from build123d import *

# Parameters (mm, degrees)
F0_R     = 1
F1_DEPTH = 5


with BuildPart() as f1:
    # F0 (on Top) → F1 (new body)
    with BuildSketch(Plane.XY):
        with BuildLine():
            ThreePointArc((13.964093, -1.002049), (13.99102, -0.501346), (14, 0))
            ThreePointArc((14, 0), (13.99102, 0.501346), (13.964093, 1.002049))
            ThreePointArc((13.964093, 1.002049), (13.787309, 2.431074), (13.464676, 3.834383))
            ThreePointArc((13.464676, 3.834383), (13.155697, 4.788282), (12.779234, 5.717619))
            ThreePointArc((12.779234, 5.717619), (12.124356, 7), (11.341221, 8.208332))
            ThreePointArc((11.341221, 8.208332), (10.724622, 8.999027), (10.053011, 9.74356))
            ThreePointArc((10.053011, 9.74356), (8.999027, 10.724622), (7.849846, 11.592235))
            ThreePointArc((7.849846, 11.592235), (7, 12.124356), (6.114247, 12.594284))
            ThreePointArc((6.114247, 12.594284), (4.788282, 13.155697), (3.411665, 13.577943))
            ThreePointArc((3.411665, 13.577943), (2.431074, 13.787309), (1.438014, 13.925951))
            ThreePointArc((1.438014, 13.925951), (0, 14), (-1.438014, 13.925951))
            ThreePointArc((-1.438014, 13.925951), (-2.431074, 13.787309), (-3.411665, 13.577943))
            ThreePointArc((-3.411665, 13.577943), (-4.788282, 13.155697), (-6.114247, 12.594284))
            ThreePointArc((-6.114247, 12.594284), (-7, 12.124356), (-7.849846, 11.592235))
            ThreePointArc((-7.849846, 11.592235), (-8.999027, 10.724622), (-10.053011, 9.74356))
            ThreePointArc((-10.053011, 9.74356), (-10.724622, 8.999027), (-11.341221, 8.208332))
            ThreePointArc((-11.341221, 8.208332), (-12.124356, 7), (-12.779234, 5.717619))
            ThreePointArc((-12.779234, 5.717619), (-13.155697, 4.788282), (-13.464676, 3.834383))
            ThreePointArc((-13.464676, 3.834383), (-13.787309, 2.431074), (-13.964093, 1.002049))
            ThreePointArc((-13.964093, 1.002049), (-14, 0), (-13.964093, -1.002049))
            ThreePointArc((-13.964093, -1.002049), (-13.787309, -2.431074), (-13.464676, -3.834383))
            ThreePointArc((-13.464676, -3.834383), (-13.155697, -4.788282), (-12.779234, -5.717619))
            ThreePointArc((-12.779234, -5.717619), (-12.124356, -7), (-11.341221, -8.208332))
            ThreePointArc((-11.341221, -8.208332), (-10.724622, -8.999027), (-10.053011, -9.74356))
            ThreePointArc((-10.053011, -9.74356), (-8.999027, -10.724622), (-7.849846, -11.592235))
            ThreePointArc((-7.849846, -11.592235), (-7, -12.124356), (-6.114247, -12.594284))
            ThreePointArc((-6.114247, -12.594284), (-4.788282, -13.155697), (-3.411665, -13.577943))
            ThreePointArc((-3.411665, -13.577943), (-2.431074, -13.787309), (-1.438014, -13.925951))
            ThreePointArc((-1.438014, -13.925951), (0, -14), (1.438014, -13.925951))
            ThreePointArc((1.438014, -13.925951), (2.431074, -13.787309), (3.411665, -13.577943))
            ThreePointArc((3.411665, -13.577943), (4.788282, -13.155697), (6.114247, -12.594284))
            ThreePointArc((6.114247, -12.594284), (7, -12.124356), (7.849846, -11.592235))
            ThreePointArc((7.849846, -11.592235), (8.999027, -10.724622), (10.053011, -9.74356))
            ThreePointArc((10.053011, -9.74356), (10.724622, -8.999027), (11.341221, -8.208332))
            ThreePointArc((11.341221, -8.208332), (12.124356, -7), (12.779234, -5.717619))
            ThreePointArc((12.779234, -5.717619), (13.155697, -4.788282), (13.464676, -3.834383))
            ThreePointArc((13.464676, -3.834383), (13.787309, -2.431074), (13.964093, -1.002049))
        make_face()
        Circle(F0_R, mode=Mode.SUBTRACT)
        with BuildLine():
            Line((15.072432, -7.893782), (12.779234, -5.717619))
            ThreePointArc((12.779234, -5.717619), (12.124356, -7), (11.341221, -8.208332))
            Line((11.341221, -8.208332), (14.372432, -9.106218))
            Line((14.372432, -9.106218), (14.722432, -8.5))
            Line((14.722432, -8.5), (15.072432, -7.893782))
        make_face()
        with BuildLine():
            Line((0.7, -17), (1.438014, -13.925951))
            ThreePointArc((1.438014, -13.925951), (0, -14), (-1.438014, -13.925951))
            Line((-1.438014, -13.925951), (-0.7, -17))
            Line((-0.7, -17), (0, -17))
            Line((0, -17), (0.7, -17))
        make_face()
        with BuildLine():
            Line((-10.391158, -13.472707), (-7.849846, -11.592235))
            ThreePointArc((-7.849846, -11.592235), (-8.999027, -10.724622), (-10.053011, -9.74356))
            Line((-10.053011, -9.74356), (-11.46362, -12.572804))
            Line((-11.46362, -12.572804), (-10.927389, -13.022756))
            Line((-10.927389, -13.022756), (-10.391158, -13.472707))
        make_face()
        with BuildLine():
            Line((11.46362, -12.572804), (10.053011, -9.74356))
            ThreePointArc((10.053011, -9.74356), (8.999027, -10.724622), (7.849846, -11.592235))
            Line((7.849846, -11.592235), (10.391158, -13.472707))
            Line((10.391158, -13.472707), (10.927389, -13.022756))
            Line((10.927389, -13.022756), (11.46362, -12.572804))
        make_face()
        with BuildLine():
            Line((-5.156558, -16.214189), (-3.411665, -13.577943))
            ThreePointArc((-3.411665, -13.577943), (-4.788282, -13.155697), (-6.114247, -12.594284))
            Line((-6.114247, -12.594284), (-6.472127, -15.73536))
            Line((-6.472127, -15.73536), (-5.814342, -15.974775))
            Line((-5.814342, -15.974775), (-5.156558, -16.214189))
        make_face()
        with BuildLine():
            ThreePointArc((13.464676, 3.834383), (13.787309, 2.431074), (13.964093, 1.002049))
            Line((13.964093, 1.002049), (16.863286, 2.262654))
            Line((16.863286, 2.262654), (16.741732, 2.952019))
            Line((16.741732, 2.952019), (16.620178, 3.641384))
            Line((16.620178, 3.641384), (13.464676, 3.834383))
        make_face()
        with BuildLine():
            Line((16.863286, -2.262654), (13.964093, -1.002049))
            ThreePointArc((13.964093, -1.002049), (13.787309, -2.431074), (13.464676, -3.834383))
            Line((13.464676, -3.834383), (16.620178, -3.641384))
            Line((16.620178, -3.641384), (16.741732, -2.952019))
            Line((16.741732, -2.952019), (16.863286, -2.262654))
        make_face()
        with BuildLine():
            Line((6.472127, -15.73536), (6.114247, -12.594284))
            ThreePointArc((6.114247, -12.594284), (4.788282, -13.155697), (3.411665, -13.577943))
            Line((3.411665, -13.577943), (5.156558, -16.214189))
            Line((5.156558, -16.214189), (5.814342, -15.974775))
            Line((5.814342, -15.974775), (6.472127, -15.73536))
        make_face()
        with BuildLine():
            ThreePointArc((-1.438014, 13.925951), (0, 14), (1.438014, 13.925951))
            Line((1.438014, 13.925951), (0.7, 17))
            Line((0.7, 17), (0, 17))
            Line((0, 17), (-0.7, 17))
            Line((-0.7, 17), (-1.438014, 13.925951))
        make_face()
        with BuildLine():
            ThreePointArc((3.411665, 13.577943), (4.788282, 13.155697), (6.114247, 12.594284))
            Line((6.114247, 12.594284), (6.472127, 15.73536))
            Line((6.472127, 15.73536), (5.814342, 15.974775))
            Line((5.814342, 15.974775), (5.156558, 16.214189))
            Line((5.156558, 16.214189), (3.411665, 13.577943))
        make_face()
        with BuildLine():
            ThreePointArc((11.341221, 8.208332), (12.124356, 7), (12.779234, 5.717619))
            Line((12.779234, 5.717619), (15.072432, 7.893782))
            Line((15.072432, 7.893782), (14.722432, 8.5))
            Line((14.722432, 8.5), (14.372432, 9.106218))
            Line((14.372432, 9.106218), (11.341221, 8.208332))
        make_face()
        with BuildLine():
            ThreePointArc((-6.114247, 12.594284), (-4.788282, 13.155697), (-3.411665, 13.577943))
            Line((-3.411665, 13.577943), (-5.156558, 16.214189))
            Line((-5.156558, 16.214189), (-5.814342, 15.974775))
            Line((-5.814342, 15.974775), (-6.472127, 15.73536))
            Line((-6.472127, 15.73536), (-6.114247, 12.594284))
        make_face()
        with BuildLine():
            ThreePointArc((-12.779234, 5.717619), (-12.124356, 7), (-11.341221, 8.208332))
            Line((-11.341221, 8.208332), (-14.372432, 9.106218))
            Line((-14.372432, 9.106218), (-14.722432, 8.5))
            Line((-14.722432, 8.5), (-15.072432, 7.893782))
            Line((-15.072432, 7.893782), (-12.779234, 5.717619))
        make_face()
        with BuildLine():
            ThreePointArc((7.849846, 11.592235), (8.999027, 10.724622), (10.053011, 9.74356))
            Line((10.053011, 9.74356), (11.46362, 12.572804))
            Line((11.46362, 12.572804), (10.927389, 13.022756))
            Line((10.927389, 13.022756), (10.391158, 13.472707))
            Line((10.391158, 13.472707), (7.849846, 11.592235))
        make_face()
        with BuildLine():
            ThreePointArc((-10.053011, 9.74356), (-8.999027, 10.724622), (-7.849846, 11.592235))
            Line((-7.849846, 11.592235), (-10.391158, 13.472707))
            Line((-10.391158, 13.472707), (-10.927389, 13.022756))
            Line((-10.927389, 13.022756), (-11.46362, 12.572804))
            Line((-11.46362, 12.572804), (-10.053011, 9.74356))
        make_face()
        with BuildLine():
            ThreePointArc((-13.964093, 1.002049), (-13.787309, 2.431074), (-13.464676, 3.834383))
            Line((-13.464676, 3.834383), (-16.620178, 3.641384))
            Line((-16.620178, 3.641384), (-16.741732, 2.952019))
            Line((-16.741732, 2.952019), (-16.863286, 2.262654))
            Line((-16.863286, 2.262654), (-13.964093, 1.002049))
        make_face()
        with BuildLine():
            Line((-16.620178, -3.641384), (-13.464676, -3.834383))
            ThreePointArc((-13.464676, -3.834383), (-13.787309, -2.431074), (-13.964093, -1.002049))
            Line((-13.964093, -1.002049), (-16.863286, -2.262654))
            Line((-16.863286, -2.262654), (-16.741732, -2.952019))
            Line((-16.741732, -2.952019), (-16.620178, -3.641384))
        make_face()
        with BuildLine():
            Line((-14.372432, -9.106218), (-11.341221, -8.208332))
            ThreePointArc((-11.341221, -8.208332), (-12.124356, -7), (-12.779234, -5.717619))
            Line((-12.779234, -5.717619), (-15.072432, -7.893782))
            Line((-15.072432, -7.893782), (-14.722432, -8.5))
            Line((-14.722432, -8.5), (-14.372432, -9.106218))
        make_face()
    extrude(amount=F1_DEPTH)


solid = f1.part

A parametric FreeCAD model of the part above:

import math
import FreeCAD as App
import Part
import Sketcher

V = App.Vector
Q = App.Units.Quantity

doc = App.newDocument("Part")
params = doc.addObject("Spreadsheet::Sheet", "Params")
for row, (alias, value) in enumerate([
    ("sketch1_diameter", "2 mm"),
    ("sketch1_width", "1.4 mm"),
    ("sketch1_length", "1.399999 mm"),
    ("sketch1_length2", "0.7 mm"),
    ("pad1_length", "5 mm"),
], start=1):
    params.set(f"A{row}", alias)
    params.set(f"B{row}", "=" + value)
    params.setAlias(f"B{row}", alias)

body = doc.addObject("PartDesign::Body", "Body")

# Sketch on XY plane
sketch1 = body.newObject("Sketcher::SketchObject", "Sketch")
sketch1.AttachmentSupport = (doc.getObject("XY_Plane"), [""])
sketch1.MapMode = "FlatFace"
sketch1.addGeometry([
    Part.ArcOfCircle(Part.Circle(V(-0.000518, 0.000021, 0), V(0, 0, 1), 14.000518), math.radians(-4.104384), math.radians(-0.000085)),  # 0
    Part.ArcOfCircle(Part.Circle(V(-0.000518, -0.000021, 0), V(0, 0, 1), 14.000518), math.radians(0.000085), math.radians(4.104384)),  # 1
    Part.LineSegment(V(13.964093, 1.002049, 0), V(16.863286, 2.262654, 0)),  # 2
    Part.LineSegment(V(16.863286, 2.262654, 0), V(16.620178, 3.641384, 0)),  # 3
    Part.LineSegment(V(16.620178, 3.641384, 0), V(13.464676, 3.834383, 0)),  # 4
    Part.ArcOfCircle(Part.Circle(V(0.000227, 0.000082, 0), V(0, 0, 1), 13.999759), math.radians(15.895482), math.radians(24.104526)),  # 5
    Part.LineSegment(V(12.779234, 5.717619, 0), V(15.072432, 7.893782, 0)),  # 6
    Part.LineSegment(V(15.072432, 7.893782, 0), V(14.372432, 9.106218, 0)),  # 7
    Part.LineSegment(V(14.372432, 9.106218, 0), V(11.341221, 8.208332, 0)),  # 8
    Part.ArcOfCircle(Part.Circle(V(0.000047, 0.000034, 0), V(0, 0, 1), 13.999942), math.radians(35.895548), math.radians(44.104485)),  # 9
    Part.LineSegment(V(10.053011, 9.74356, 0), V(11.46362, 12.572804, 0)),  # 10
    Part.LineSegment(V(11.46362, 12.572804, 0), V(10.927389, 13.022756, 0)),  # 11
    Part.LineSegment(V(10.927389, 13.022756, 0), V(10.391158, 13.472707, 0)),  # 12
    Part.LineSegment(V(10.391158, 13.472707, 0), V(7.849846, 11.592235, 0)),  # 13
    Part.ArcOfCircle(Part.Circle(V(0.000055, 0.000101, 0), V(0, 0, 1), 13.999886), math.radians(55.895506), math.radians(64.104472)),  # 14
    Part.LineSegment(V(6.114247, 12.594284, 0), V(6.472127, 15.73536, 0)),  # 15
    Part.LineSegment(V(6.472127, 15.73536, 0), V(5.814342, 15.974775, 0)),  # 16
    Part.LineSegment(V(5.814342, 15.974775, 0), V(5.156558, 16.214189, 0)),  # 17
    Part.LineSegment(V(5.156558, 16.214189, 0), V(3.411665, 13.577943, 0)),  # 18
    Part.ArcOfCircle(Part.Circle(V(0.000037, 0.000211, 0), V(0, 0, 1), 13.999786), math.radians(75.895484), math.radians(84.104511)),  # 19
    Part.LineSegment(V(1.438014, 13.925951, 0), V(0.7, 17, 0)),  # 20
    Part.LineSegment(V(0.7, 17, 0), V(-0.7, 17, 0)),  # 21
    Part.LineSegment(V(-0.7, 17, 0), V(-1.438014, 13.925951, 0)),  # 22
    Part.ArcOfCircle(Part.Circle(V(-0.000037, 0.000211, 0), V(0, 0, 1), 13.999786), math.radians(95.895489), math.radians(104.104516)),  # 23
    Part.LineSegment(V(-3.411665, 13.577943, 0), V(-5.156558, 16.214189, 0)),  # 24
    Part.LineSegment(V(-5.156558, 16.214189, 0), V(-5.814342, 15.974775, 0)),  # 25
    Part.LineSegment(V(-5.814342, 15.974775, 0), V(-6.472127, 15.73536, 0)),  # 26
    Part.LineSegment(V(-6.472127, 15.73536, 0), V(-6.114247, 12.594284, 0)),  # 27
    Part.ArcOfCircle(Part.Circle(V(-0.000055, 0.000101, 0), V(0, 0, 1), 13.999886), math.radians(115.895528), math.radians(124.104494)),  # 28
    Part.LineSegment(V(-7.849846, 11.592235, 0), V(-10.391158, 13.472707, 0)),  # 29
    Part.LineSegment(V(-10.391158, 13.472707, 0), V(-10.927389, 13.022756, 0)),  # 30
    Part.LineSegment(V(-10.927389, 13.022756, 0), V(-11.46362, 12.572804, 0)),  # 31
    Part.LineSegment(V(-11.46362, 12.572804, 0), V(-10.053011, 9.74356, 0)),  # 32
    Part.ArcOfCircle(Part.Circle(V(-0.000047, 0.000034, 0), V(0, 0, 1), 13.999942), math.radians(135.895515), math.radians(144.104452)),  # 33
    Part.LineSegment(V(-11.341221, 8.208332, 0), V(-14.372432, 9.106218, 0)),  # 34
    Part.LineSegment(V(-14.372432, 9.106218, 0), V(-15.072432, 7.893782, 0)),  # 35
    Part.LineSegment(V(-15.072432, 7.893782, 0), V(-12.779234, 5.717619, 0)),  # 36
    Part.ArcOfCircle(Part.Circle(V(-0.000227, 0.000082, 0), V(0, 0, 1), 13.999759), math.radians(155.895474), math.radians(164.104518)),  # 37
    Part.LineSegment(V(-13.464676, 3.834383, 0), V(-16.620178, 3.641384, 0)),  # 38
    Part.LineSegment(V(-16.620178, 3.641384, 0), V(-16.863286, 2.262654, 0)),  # 39
    Part.LineSegment(V(-16.863286, 2.262654, 0), V(-13.964093, 1.002049, 0)),  # 40
    Part.ArcOfCircle(Part.Circle(V(-0.000063, 0, 0), V(0, 0, 1), 13.999937), math.radians(175.895531), math.radians(184.104469)),  # 41
    Part.LineSegment(V(-13.964093, -1.002049, 0), V(-16.863286, -2.262654, 0)),  # 42
    Part.LineSegment(V(-16.863286, -2.262654, 0), V(-16.620178, -3.641384, 0)),  # 43
    Part.LineSegment(V(-16.620178, -3.641384, 0), V(-13.464676, -3.834383, 0)),  # 44
    Part.ArcOfCircle(Part.Circle(V(-0.000227, -0.000082, 0), V(0, 0, 1), 13.999759), math.radians(-164.104518), math.radians(-155.895474)),  # 45
    Part.LineSegment(V(-12.779234, -5.717619, 0), V(-15.072432, -7.893782, 0)),  # 46
    Part.LineSegment(V(-15.072432, -7.893782, 0), V(-14.372432, -9.106218, 0)),  # 47
    Part.LineSegment(V(-14.372432, -9.106218, 0), V(-11.341221, -8.208332, 0)),  # 48
    Part.ArcOfCircle(Part.Circle(V(-0.000047, -0.000034, 0), V(0, 0, 1), 13.999942), math.radians(-144.104452), math.radians(-135.895515)),  # 49
    Part.LineSegment(V(-10.053011, -9.74356, 0), V(-11.46362, -12.572804, 0)),  # 50
    Part.LineSegment(V(-11.46362, -12.572804, 0), V(-10.927389, -13.022756, 0)),  # 51
    Part.LineSegment(V(-10.927389, -13.022756, 0), V(-10.391158, -13.472707, 0)),  # 52
    Part.LineSegment(V(-10.391158, -13.472707, 0), V(-7.849846, -11.592235, 0)),  # 53
    Part.ArcOfCircle(Part.Circle(V(-0.000055, -0.000101, 0), V(0, 0, 1), 13.999886), math.radians(-124.104494), math.radians(-115.895528)),  # 54
    Part.LineSegment(V(-6.114247, -12.594284, 0), V(-6.472127, -15.73536, 0)),  # 55
    Part.LineSegment(V(-6.472127, -15.73536, 0), V(-5.814342, -15.974775, 0)),  # 56
    Part.LineSegment(V(-5.814342, -15.974775, 0), V(-5.156558, -16.214189, 0)),  # 57
    Part.LineSegment(V(-5.156558, -16.214189, 0), V(-3.411665, -13.577943, 0)),  # 58
    Part.ArcOfCircle(Part.Circle(V(-0.000037, -0.000211, 0), V(0, 0, 1), 13.999786), math.radians(-104.104516), math.radians(-95.895489)),  # 59
    Part.LineSegment(V(-1.438014, -13.925951, 0), V(-0.7, -17, 0)),  # 60
    Part.LineSegment(V(-0.7, -17, 0), V(0.7, -17, 0)),  # 61
    Part.LineSegment(V(0.7, -17, 0), V(1.438014, -13.925951, 0)),  # 62
    Part.ArcOfCircle(Part.Circle(V(0.000037, -0.000211, 0), V(0, 0, 1), 13.999786), math.radians(-84.104511), math.radians(-75.895484)),  # 63
    Part.LineSegment(V(3.411665, -13.577943, 0), V(5.156558, -16.214189, 0)),  # 64
    Part.LineSegment(V(5.156558, -16.214189, 0), V(5.814342, -15.974775, 0)),  # 65
    Part.LineSegment(V(5.814342, -15.974775, 0), V(6.472127, -15.73536, 0)),  # 66
    Part.LineSegment(V(6.472127, -15.73536, 0), V(6.114247, -12.594284, 0)),  # 67
    Part.ArcOfCircle(Part.Circle(V(0.000055, -0.000101, 0), V(0, 0, 1), 13.999886), math.radians(-64.104472), math.radians(-55.895506)),  # 68
    Part.LineSegment(V(7.849846, -11.592235, 0), V(10.391158, -13.472707, 0)),  # 69
    Part.LineSegment(V(10.391158, -13.472707, 0), V(10.927389, -13.022756, 0)),  # 70
    Part.LineSegment(V(10.927389, -13.022756, 0), V(11.46362, -12.572804, 0)),  # 71
    Part.LineSegment(V(11.46362, -12.572804, 0), V(10.053011, -9.74356, 0)),  # 72
    Part.ArcOfCircle(Part.Circle(V(0.000047, -0.000034, 0), V(0, 0, 1), 13.999942), math.radians(-44.104485), math.radians(-35.895548)),  # 73
    Part.LineSegment(V(11.341221, -8.208332, 0), V(14.372432, -9.106218, 0)),  # 74
    Part.LineSegment(V(14.372432, -9.106218, 0), V(15.072432, -7.893782, 0)),  # 75
    Part.LineSegment(V(15.072432, -7.893782, 0), V(12.779234, -5.717619, 0)),  # 76
    Part.ArcOfCircle(Part.Circle(V(0.000227, -0.000082, 0), V(0, 0, 1), 13.999759), math.radians(-24.104526), math.radians(-15.895482)),  # 77
    Part.LineSegment(V(13.464676, -3.834383, 0), V(16.620178, -3.641384, 0)),  # 78
    Part.LineSegment(V(16.620178, -3.641384, 0), V(16.863286, -2.262654, 0)),  # 79
    Part.LineSegment(V(16.863286, -2.262654, 0), V(13.964093, -1.002049, 0)),  # 80
    Part.Circle(V(0, 0, 0), V(0, 0, 1), 1),  # 81
], False)
sketch1.addConstraint([
    Sketcher.Constraint("Coincident", 0, 2, 1, 1),
    Sketcher.Constraint("Coincident", 1, 2, 2, 1),
    Sketcher.Constraint("Coincident", 2, 2, 3, 1),
    Sketcher.Constraint("Coincident", 3, 2, 4, 1),
    Sketcher.Constraint("Coincident", 4, 2, 5, 1),
    Sketcher.Constraint("Coincident", 5, 2, 6, 1),
    Sketcher.Constraint("Coincident", 6, 2, 7, 1),
    Sketcher.Constraint("Coincident", 7, 2, 8, 1),
    Sketcher.Constraint("Coincident", 8, 2, 9, 1),
    Sketcher.Constraint("Coincident", 9, 2, 10, 1),
    Sketcher.Constraint("Coincident", 10, 2, 11, 1),
    Sketcher.Constraint("Coincident", 11, 2, 12, 1),
    Sketcher.Constraint("Coincident", 12, 2, 13, 1),
    Sketcher.Constraint("Coincident", 13, 2, 14, 1),
    Sketcher.Constraint("Coincident", 14, 2, 15, 1),
    Sketcher.Constraint("Coincident", 15, 2, 16, 1),
    Sketcher.Constraint("Coincident", 16, 2, 17, 1),
    Sketcher.Constraint("Coincident", 17, 2, 18, 1),
    Sketcher.Constraint("Coincident", 18, 2, 19, 1),
    Sketcher.Constraint("Coincident", 19, 2, 20, 1),
    Sketcher.Constraint("Coincident", 20, 2, 21, 1),
    Sketcher.Constraint("Coincident", 21, 2, 22, 1),
    Sketcher.Constraint("Coincident", 22, 2, 23, 1),
    Sketcher.Constraint("Coincident", 23, 2, 24, 1),
    Sketcher.Constraint("Coincident", 24, 2, 25, 1),
    Sketcher.Constraint("Coincident", 25, 2, 26, 1),
    Sketcher.Constraint("Coincident", 26, 2, 27, 1),
    Sketcher.Constraint("Coincident", 27, 2, 28, 1),
    Sketcher.Constraint("Coincident", 28, 2, 29, 1),
    Sketcher.Constraint("Coincident", 29, 2, 30, 1),
    Sketcher.Constraint("Coincident", 30, 2, 31, 1),
    Sketcher.Constraint("Coincident", 31, 2, 32, 1),
    Sketcher.Constraint("Coincident", 32, 2, 33, 1),
    Sketcher.Constraint("Coincident", 33, 2, 34, 1),
    Sketcher.Constraint("Coincident", 34, 2, 35, 1),
    Sketcher.Constraint("Coincident", 35, 2, 36, 1),
    Sketcher.Constraint("Coincident", 36, 2, 37, 1),
    Sketcher.Constraint("Coincident", 37, 2, 38, 1),
    Sketcher.Constraint("Coincident", 38, 2, 39, 1),
    Sketcher.Constraint("Coincident", 39, 2, 40, 1),
    Sketcher.Constraint("Coincident", 40, 2, 41, 1),
    Sketcher.Constraint("Coincident", 41, 2, 42, 1),
    Sketcher.Constraint("Coincident", 42, 2, 43, 1),
    Sketcher.Constraint("Coincident", 43, 2, 44, 1),
    Sketcher.Constraint("Coincident", 44, 2, 45, 1),
    Sketcher.Constraint("Coincident", 45, 2, 46, 1),
    Sketcher.Constraint("Coincident", 46, 2, 47, 1),
    Sketcher.Constraint("Coincident", 47, 2, 48, 1),
    Sketcher.Constraint("Coincident", 48, 2, 49, 1),
    Sketcher.Constraint("Coincident", 49, 2, 50, 1),
    Sketcher.Constraint("Coincident", 50, 2, 51, 1),
    Sketcher.Constraint("Coincident", 51, 2, 52, 1),
    Sketcher.Constraint("Coincident", 52, 2, 53, 1),
    Sketcher.Constraint("Coincident", 53, 2, 54, 1),
    Sketcher.Constraint("Coincident", 54, 2, 55, 1),
    Sketcher.Constraint("Coincident", 55, 2, 56, 1),
    Sketcher.Constraint("Coincident", 56, 2, 57, 1),
    Sketcher.Constraint("Coincident", 57, 2, 58, 1),
    Sketcher.Constraint("Coincident", 58, 2, 59, 1),
    Sketcher.Constraint("Coincident", 59, 2, 60, 1),
    Sketcher.Constraint("Coincident", 60, 2, 61, 1),
    Sketcher.Constraint("Coincident", 61, 2, 62, 1),
    Sketcher.Constraint("Coincident", 62, 2, 63, 1),
    Sketcher.Constraint("Coincident", 63, 2, 64, 1),
    Sketcher.Constraint("Coincident", 64, 2, 65, 1),
    Sketcher.Constraint("Coincident", 65, 2, 66, 1),
    Sketcher.Constraint("Coincident", 66, 2, 67, 1),
    Sketcher.Constraint("Coincident", 67, 2, 68, 1),
    Sketcher.Constraint("Coincident", 68, 2, 69, 1),
    Sketcher.Constraint("Coincident", 69, 2, 70, 1),
    Sketcher.Constraint("Coincident", 70, 2, 71, 1),
    Sketcher.Constraint("Coincident", 71, 2, 72, 1),
    Sketcher.Constraint("Coincident", 72, 2, 73, 1),
    Sketcher.Constraint("Coincident", 73, 2, 74, 1),
    Sketcher.Constraint("Coincident", 74, 2, 75, 1),
    Sketcher.Constraint("Coincident", 75, 2, 76, 1),
    Sketcher.Constraint("Coincident", 76, 2, 77, 1),
    Sketcher.Constraint("Coincident", 77, 2, 78, 1),
    Sketcher.Constraint("Coincident", 78, 2, 79, 1),
    Sketcher.Constraint("Coincident", 79, 2, 80, 1),
    Sketcher.Constraint("Coincident", 80, 2, 0, 1),
    Sketcher.Constraint("Horizontal", 21),
    Sketcher.Constraint("Horizontal", 61),
    Sketcher.Constraint("Coincident", 81, 3, -1, 1),
    Sketcher.Constraint("Equal", 0, 1),
    Sketcher.Constraint("Equal", 19, 23),
    Sketcher.Constraint("Equal", 14, 28),
    Sketcher.Constraint("Equal", 9, 33),
    Sketcher.Constraint("Equal", 5, 37),
    Sketcher.Constraint("Equal", 37, 45),
    Sketcher.Constraint("Equal", 33, 49),
    Sketcher.Constraint("Equal", 28, 54),
    Sketcher.Constraint("Equal", 23, 59),
    Sketcher.Constraint("Equal", 59, 63),
    Sketcher.Constraint("Equal", 54, 68),
    Sketcher.Constraint("Equal", 49, 73),
    Sketcher.Constraint("Equal", 45, 77),
    Sketcher.Constraint("Symmetric", 5, 3, 45, 3, -1, 1),
    Sketcher.Constraint("Symmetric", 9, 3, 49, 3, -1, 1),
    Sketcher.Constraint("Symmetric", 14, 3, 54, 3, -1, 1),
    Sketcher.Constraint("Symmetric", 19, 3, 59, 3, -1, 1),
    Sketcher.Constraint("Symmetric", 23, 3, 63, 3, -1, 1),
    Sketcher.Constraint("Symmetric", 28, 3, 68, 3, -1, 1),
    Sketcher.Constraint("Symmetric", 33, 3, 73, 3, -1, 1),
    Sketcher.Constraint("Symmetric", 37, 3, 77, 3, -1, 1),
    Sketcher.Constraint("Symmetric", 1, 2, 41, 2, -1, 1),
    Sketcher.Constraint("Symmetric", 2, 2, 42, 2, -1, 1),
    Sketcher.Constraint("Symmetric", 3, 2, 43, 2, -1, 1),
    Sketcher.Constraint("Symmetric", 6, 2, 46, 2, -1, 1),
    Sketcher.Constraint("Symmetric", 7, 2, 47, 2, -1, 1),
    Sketcher.Constraint("Symmetric", 10, 2, 50, 2, -1, 1),
    Sketcher.Constraint("Symmetric", 11, 2, 51, 2, -1, 1),
    Sketcher.Constraint("Symmetric", 12, 2, 52, 2, -1, 1),
    Sketcher.Constraint("Symmetric", 15, 2, 55, 2, -1, 1),
    Sketcher.Constraint("Symmetric", 16, 2, 56, 2, -1, 1),
    Sketcher.Constraint("Symmetric", 17, 2, 57, 2, -1, 1),
    Sketcher.Constraint("Symmetric", 20, 2, 60, 2, -1, 1),
    Sketcher.Constraint("Symmetric", 24, 2, 64, 2, -1, 1),
    Sketcher.Constraint("Symmetric", 25, 2, 65, 2, -1, 1),
    Sketcher.Constraint("Symmetric", 26, 2, 66, 2, -1, 1),
    Sketcher.Constraint("Symmetric", 29, 2, 69, 2, -1, 1),
    Sketcher.Constraint("Symmetric", 30, 2, 70, 2, -1, 1),
    Sketcher.Constraint("Symmetric", 31, 2, 71, 2, -1, 1),
    Sketcher.Constraint("Symmetric", 34, 2, 74, 2, -1, 1),
    Sketcher.Constraint("Symmetric", 35, 2, 75, 2, -1, 1),
    Sketcher.Constraint("Symmetric", 38, 2, 78, 2, -1, 1),
    Sketcher.Constraint("Symmetric", 39, 2, 79, 2, -1, 1),
    Sketcher.Constraint("Symmetric", 40, 2, 80, 2, -1, 1),
    Sketcher.Constraint("Symmetric", 19, 3, 23, 3, -2),
    Sketcher.Constraint("Symmetric", 14, 3, 28, 3, -2),
    Sketcher.Constraint("Symmetric", 9, 3, 33, 3, -2),
    Sketcher.Constraint("Symmetric", 5, 3, 37, 3, -2),
    Sketcher.Constraint("Symmetric", 17, 2, 24, 2, -2),
    Sketcher.Constraint("Symmetric", 16, 2, 25, 2, -2),
    Sketcher.Constraint("Symmetric", 15, 2, 26, 2, -2),
    Sketcher.Constraint("Symmetric", 12, 2, 29, 2, -2),
    Sketcher.Constraint("Symmetric", 11, 2, 30, 2, -2),
    Sketcher.Constraint("Symmetric", 10, 2, 31, 2, -2),
    Sketcher.Constraint("Symmetric", 7, 2, 34, 2, -2),
    Sketcher.Constraint("Symmetric", 6, 2, 35, 2, -2),
    Sketcher.Constraint("Symmetric", 3, 2, 38, 2, -2),
    Sketcher.Constraint("Symmetric", 2, 2, 39, 2, -2),
    Sketcher.Constraint("Symmetric", 1, 2, 40, 2, -2),
    Sketcher.Constraint("PointOnObject", 0, 2, -1),
    Sketcher.Constraint("Parallel", 11, 12),
    Sketcher.Constraint("Parallel", 16, 17),
    Sketcher.Constraint("Parallel", 4, 44),
    Sketcher.Constraint("Parallel", 6, 46),
    Sketcher.Constraint("Parallel", 8, 48),
    Sketcher.Constraint("Parallel", 10, 50),
    Sketcher.Constraint("Parallel", 13, 53),
    Sketcher.Constraint("Parallel", 15, 55),
    Sketcher.Constraint("Parallel", 18, 58),
    Sketcher.Constraint("Parallel", 20, 60),
    Sketcher.Constraint("Parallel", 22, 62),
    Sketcher.Constraint("Parallel", 24, 64),
    Sketcher.Constraint("Parallel", 27, 67),
    Sketcher.Constraint("Parallel", 29, 69),
    Sketcher.Constraint("Parallel", 32, 72),
    Sketcher.Constraint("Parallel", 34, 74),
    Sketcher.Constraint("Parallel", 36, 76),
    Sketcher.Constraint("Parallel", 38, 78),
    Sketcher.Constraint("Horizontal", 19, 2, 22, 2),
    Sketcher.Constraint("Horizontal", 18, 2, 23, 2),
    Sketcher.Constraint("Horizontal", 14, 2, 27, 2),
    Sketcher.Constraint("Horizontal", 13, 2, 28, 2),
    Sketcher.Constraint("Horizontal", 9, 2, 32, 2),
    Sketcher.Constraint("Horizontal", 8, 2, 33, 2),
    Sketcher.Constraint("Horizontal", 5, 2, 36, 2),
    Sketcher.Constraint("Horizontal", 4, 2, 37, 2),
    Sketcher.Constraint("Horizontal", 59, 2, 62, 2),
    Sketcher.Constraint("Vertical", 21, 2, 60, 2),
    Sketcher.Constraint("Equal", 2, 4),
    Sketcher.Constraint("Equal", 4, 6),
    Sketcher.Constraint("Equal", 3, 7),
    Sketcher.Constraint("Equal", 6, 8),
    Sketcher.Constraint("Equal", 8, 10),
    Sketcher.Constraint("Equal", 11, 12),
    Sketcher.Constraint("Equal", 10, 13),
    Sketcher.Constraint("Equal", 13, 15),
    Sketcher.Constraint("Equal", 12, 16),
    Sketcher.Constraint("Equal", 16, 17),
    Sketcher.Constraint("Equal", 15, 18),
    Sketcher.Constraint("Equal", 18, 20),
    Sketcher.Constraint("Diameter", 81, Q("2 mm")),
    Sketcher.Constraint("Angle", 7, Q("119.999991 deg")),
    Sketcher.Constraint("Angle", 12, Q("140.000015 deg")),
    Sketcher.Constraint("Angle", 17, Q("159.999984 deg")),
    Sketcher.Constraint("DistanceX", 21, 2, 21, 1, Q("1.4 mm")),
    Sketcher.Constraint("DistanceX", -1, 1, 0, 2, Q("14 mm")),
    Sketcher.Constraint("DistanceY", -1, 1, 20, 2, Q("17 mm")),
    Sketcher.Constraint("Angle", 2, Q("23.5 deg")),
    Sketcher.Constraint("Angle", 4, Q("176.499996 deg")),
    Sketcher.Constraint("Angle", 6, Q("43.499992 deg")),
    Sketcher.Constraint("Angle", 8, Q("-163.499993 deg")),
    Sketcher.Constraint("Angle", 10, Q("63.5 deg")),
    Sketcher.Constraint("Angle", 13, Q("-143.499999 deg")),
    Sketcher.Constraint("Angle", 15, Q("83.500007 deg")),
    Sketcher.Constraint("Angle", 18, Q("-123.499998 deg")),
    Sketcher.Constraint("Angle", 20, Q("103.500002 deg")),
    Sketcher.Constraint("Distance", 3, Q("1.399999 mm")),
    Sketcher.Constraint("Distance", 11, Q("0.7 mm")),
    Sketcher.Constraint("Radius", 5, Q("13.999759 mm")),
    Sketcher.Constraint("Radius", 0, Q("14.000518 mm")),
    Sketcher.Constraint("Radius", 9, Q("13.999942 mm")),
    Sketcher.Constraint("Radius", 14, Q("13.999886 mm")),
    Sketcher.Constraint("Radius", 19, Q("13.999786 mm")),
    Sketcher.Constraint("Radius", 41, Q("13.999937 mm")),
    Sketcher.Constraint("Distance", 2, Q("3.161399 mm")),
    Sketcher.Constraint("DistanceY", -1, 1, 14, 3, Q("0.000101 mm")),
    Sketcher.Constraint("DistanceY", -1, 1, 19, 3, Q("0.000211 mm")),
    Sketcher.Constraint("DistanceY", -1, 1, 1, 2, Q("1.002049 mm")),
    Sketcher.Constraint("DistanceY", -1, 1, 5, 2, Q("5.717619 mm")),
    Sketcher.Constraint("DistanceX", -1, 1, 6, 2, Q("15.072432 mm")),
    Sketcher.Constraint("DistanceX", -1, 1, 9, 2, Q("10.053011 mm")),
    Sketcher.Constraint("DistanceY", -1, 1, 9, 2, Q("9.74356 mm")),
    Sketcher.Constraint("DistanceX", -1, 1, 5, 3, Q("0.000227 mm")),
    Sketcher.Constraint("DistanceX", -1, 1, 1, 2, Q("13.964093 mm")),
])
sketch1.setExpression("Constraints[184]", "Params.sketch1_diameter")
sketch1.setExpression("Constraints[188]", "Params.sketch1_width")
sketch1.setExpression("Constraints[200]", "Params.sketch1_length")
sketch1.setExpression("Constraints[201]", "Params.sketch1_length2")
pad1 = body.newObject("PartDesign::Pad", "Pad")
pad1.Profile = sketch1
pad1.setExpression("Length", "Params.pad1_length")

doc.recompute()
